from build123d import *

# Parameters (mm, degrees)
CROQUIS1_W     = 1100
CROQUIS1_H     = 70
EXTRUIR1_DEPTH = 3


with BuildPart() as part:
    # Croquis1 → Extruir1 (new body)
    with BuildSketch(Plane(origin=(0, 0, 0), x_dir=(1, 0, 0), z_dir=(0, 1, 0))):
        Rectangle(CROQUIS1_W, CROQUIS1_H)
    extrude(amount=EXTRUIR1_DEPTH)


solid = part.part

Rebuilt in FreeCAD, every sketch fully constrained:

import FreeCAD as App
import Part
import Sketcher
from FreeCAD import Vector

doc = App.newDocument("Part")
body = doc.addObject("PartDesign::Body", "Body")

sketch1 = doc.addObject("Sketcher::SketchObject", "Sketch")
body.addObject(sketch1)
sketch1.AttachmentSupport = (doc.XZ_Plane, [""])
sketch1.MapMode = "FlatFace"
sketch1.addGeometry([
    Part.LineSegment(Vector(-550, -35, 0), Vector(-550, 35, 0)),
    Part.LineSegment(Vector(-550, 35, 0), Vector(550, 35, 0)),
    Part.LineSegment(Vector(550, 35, 0), Vector(550, -35, 0)),
    Part.LineSegment(Vector(550, -35, 0), Vector(-550, -35, 0)),
], False)
sketch1.addConstraint([
    Sketcher.Constraint("Coincident", 0, 2, 1, 1),
    Sketcher.Constraint("Coincident", 1, 2, 2, 1),
    Sketcher.Constraint("Coincident", 2, 2, 3, 1),
    Sketcher.Constraint("Coincident", 3, 2, 0, 1),
    Sketcher.Constraint("Vertical", 0),
    Sketcher.Constraint("Horizontal", 1),
    Sketcher.Constraint("Vertical", 2),
    Sketcher.Constraint("Horizontal", 3),
    Sketcher.Constraint("Symmetric", 0, 2, 2, 2, -1, 1),
    Sketcher.Constraint("DistanceX", 1, 1, 1, 2, 1100.0),
    Sketcher.Constraint("DistanceY", 0, 1, 0, 2, 70.0),
])
pad1 = doc.addObject("PartDesign::Pad", "Pad")
body.addObject(pad1)
pad1.Profile = sketch1
pad1.Length = 3
pad1.Reversed = True

doc.recompute()
